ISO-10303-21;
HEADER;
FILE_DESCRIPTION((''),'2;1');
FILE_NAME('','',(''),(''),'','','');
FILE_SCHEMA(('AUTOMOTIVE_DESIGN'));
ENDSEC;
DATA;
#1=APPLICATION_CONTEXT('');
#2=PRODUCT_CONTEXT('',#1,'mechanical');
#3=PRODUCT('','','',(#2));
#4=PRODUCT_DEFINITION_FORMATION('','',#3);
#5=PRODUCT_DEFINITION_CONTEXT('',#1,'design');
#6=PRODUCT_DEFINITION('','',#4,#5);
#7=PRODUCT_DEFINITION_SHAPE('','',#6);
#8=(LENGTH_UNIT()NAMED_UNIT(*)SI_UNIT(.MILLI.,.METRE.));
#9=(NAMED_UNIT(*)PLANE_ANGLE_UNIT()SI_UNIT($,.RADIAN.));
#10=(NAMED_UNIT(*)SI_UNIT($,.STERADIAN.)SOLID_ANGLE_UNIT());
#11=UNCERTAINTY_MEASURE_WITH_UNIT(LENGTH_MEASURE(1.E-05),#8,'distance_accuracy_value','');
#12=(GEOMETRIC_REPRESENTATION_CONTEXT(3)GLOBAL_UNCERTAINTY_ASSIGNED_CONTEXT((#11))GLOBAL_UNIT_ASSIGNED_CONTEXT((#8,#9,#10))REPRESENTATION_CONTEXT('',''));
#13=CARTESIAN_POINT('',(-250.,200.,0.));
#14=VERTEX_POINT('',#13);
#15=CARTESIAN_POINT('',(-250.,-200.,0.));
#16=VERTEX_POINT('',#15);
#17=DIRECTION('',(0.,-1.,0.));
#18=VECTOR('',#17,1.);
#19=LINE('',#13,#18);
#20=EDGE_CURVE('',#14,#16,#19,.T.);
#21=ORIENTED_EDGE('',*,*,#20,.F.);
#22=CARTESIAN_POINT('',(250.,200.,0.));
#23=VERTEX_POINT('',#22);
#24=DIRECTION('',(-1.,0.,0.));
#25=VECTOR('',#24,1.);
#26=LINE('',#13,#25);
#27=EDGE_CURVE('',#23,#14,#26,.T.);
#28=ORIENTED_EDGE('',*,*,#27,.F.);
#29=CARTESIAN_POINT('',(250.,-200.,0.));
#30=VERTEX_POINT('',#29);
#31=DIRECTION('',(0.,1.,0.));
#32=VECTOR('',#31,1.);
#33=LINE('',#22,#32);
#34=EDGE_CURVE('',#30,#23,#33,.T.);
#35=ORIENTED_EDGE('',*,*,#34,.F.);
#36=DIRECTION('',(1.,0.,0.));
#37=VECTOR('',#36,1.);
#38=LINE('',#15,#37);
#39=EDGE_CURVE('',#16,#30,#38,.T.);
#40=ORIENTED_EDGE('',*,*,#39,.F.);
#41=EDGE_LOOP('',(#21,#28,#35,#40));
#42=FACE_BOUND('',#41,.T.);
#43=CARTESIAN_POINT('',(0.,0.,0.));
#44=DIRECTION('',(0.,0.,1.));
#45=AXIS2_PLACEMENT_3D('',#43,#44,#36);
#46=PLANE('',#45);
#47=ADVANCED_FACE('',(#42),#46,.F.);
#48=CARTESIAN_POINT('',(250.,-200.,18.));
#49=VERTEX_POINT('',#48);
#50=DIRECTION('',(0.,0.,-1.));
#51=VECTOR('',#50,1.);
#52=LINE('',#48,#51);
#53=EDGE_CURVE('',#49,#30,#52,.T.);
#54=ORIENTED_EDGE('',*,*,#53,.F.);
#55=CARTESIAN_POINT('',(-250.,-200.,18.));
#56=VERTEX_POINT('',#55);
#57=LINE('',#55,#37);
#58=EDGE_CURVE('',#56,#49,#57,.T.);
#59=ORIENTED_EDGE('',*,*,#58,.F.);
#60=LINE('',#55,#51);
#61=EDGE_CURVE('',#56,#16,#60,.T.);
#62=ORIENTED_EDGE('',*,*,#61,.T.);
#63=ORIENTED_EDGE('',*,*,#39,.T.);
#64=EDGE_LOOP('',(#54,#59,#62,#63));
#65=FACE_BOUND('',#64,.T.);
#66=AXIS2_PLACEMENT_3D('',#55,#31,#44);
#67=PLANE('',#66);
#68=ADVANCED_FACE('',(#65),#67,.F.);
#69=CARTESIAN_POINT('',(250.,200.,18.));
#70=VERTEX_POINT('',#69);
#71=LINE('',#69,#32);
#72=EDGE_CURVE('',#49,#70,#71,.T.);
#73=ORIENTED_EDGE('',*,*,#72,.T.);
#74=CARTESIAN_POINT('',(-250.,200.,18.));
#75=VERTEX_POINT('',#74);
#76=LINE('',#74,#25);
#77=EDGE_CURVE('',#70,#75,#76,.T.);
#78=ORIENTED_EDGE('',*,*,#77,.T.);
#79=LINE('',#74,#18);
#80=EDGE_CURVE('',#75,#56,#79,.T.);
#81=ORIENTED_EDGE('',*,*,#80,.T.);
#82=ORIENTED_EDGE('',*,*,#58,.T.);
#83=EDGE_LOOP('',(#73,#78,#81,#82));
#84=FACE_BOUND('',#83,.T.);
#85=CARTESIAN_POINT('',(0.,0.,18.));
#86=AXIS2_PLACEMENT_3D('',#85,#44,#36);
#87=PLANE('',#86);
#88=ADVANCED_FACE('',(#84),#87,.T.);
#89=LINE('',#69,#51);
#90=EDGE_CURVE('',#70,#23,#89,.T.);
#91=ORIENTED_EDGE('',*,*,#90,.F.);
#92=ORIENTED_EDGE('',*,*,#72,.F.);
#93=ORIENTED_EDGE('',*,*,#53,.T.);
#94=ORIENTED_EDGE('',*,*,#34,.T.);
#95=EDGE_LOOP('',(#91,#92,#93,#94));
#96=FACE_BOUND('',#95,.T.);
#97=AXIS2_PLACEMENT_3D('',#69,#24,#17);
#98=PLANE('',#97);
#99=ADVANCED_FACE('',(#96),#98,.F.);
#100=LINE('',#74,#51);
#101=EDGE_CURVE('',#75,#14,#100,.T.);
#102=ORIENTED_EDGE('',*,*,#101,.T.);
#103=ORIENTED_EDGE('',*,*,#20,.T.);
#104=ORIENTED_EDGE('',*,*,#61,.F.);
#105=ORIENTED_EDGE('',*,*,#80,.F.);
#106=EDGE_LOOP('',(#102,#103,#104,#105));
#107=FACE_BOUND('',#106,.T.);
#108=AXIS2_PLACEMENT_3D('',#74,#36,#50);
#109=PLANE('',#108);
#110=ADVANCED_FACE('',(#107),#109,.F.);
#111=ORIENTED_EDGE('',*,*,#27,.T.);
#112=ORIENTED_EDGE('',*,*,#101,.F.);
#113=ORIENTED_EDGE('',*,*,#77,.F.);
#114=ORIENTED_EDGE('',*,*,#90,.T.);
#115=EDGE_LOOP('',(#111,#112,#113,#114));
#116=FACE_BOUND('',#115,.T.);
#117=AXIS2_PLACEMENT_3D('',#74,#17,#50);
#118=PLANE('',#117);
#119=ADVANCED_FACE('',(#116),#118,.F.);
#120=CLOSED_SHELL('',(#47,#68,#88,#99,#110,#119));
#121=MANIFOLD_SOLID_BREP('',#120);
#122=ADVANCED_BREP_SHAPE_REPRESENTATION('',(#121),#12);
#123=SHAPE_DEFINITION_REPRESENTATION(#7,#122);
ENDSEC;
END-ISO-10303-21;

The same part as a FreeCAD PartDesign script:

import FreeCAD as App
import Part
import Sketcher
from FreeCAD import Vector
Q = App.Units.Quantity


def add_polygon(sketch, points):
    """Adds a closed chain of lines whose ends are joined by coincident constraints."""
    first, n = sketch.GeometryCount, len(points)
    for a, b in zip(points, points[1:] + points[:1]):
        sketch.addGeometry(Part.LineSegment(App.Vector(*a, 0), App.Vector(*b, 0)), False)
    for i in range(n):
        sketch.addConstraint(Sketcher.Constraint("Coincident", first + i, 2, first + (i + 1) % n, 1))

doc = App.newDocument("Part")
body = doc.addObject("PartDesign::Body", "Body")

# Sketch on XY plane
sketch1 = doc.addObject("Sketcher::SketchObject", "Sketch")
body.addObject(sketch1)
sketch1.AttachmentSupport = (doc.XY_Plane, [""])
sketch1.MapMode = "FlatFace"
add_polygon(sketch1, [(-250, 200), (-250, -200), (250, -200), (250, 200)])  # lines 0-3
sketch1.addConstraint(Sketcher.Constraint("Vertical", 0))
sketch1.addConstraint(Sketcher.Constraint("Horizontal", 1))
sketch1.addConstraint(Sketcher.Constraint("Vertical", 2))
sketch1.addConstraint(Sketcher.Constraint("Horizontal", 3))
sketch1.addConstraint(Sketcher.Constraint("Symmetric", 0, 2, 2, 2, -1, 1))
sketch1.addConstraint(Sketcher.Constraint("DistanceX", 1, 1, 1, 2, Q("500 mm")))
sketch1.addConstraint(Sketcher.Constraint("DistanceY", 0, 2, 0, 1, Q("400 mm")))
pad1 = doc.addObject("PartDesign::Pad", "Pad")
body.addObject(pad1)
pad1.Profile = sketch1
pad1.Length = 18

doc.recompute()
